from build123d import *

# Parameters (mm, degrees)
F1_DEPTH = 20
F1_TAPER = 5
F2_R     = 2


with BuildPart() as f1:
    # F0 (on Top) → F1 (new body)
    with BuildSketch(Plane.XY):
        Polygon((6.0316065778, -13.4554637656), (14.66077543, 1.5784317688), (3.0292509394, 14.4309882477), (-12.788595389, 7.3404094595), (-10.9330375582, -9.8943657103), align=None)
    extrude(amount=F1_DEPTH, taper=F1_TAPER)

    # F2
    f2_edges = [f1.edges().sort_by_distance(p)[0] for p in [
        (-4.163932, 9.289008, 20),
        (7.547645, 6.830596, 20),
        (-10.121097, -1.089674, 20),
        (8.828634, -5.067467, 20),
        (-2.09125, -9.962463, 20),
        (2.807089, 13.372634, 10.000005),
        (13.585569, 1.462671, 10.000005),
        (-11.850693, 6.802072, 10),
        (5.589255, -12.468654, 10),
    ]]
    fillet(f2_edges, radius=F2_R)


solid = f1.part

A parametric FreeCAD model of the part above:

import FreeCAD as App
import Part
import Sketcher
from FreeCAD import Vector
Q = App.Units.Quantity


def edges_at(feature, points):
    """Names of the edges that pass closest to the given points."""
    edges = feature.Shape.Edges
    near = lambda p: min(range(len(edges)), key=lambda i: edges[i].distToShape(Part.Vertex(*p))[0])
    return sorted({f"Edge{near(p) + 1}" for p in points})


def add_polygon(sketch, points):
    """Adds a closed chain of lines whose ends are joined by coincident constraints."""
    first, n = sketch.GeometryCount, len(points)
    for a, b in zip(points, points[1:] + points[:1]):
        sketch.addGeometry(Part.LineSegment(App.Vector(*a, 0), App.Vector(*b, 0)), False)
    for i in range(n):
        sketch.addConstraint(Sketcher.Constraint("Coincident", first + i, 2, first + (i + 1) % n, 1))

doc = App.newDocument("Part")
params = doc.addObject("Spreadsheet::Sheet", "Params")
for row, (alias, value) in enumerate([
    ("pad1_length", "20 mm"),
    ("pad1_taper", "-5 deg"),
    ("fillet_radius", "2 mm"),
], start=1):
    params.set(f"A{row}", alias)
    params.set(f"B{row}", "=" + value)
    params.setAlias(f"B{row}", alias)

body = doc.addObject("PartDesign::Body", "Body")

# Sketch on XY plane
sketch1 = body.newObject("Sketcher::SketchObject", "Sketch")
sketch1.AttachmentSupport = (doc.getObject("XY_Plane"), [""])
sketch1.MapMode = "FlatFace"
add_polygon(sketch1, [(6, -13), (15, 2), (3, 14), (-13, 7), (-11, -10)])  # lines 0-4
sketch1.addConstraint(Sketcher.Constraint("Equal", 0, 1))
sketch1.addConstraint(Sketcher.Constraint("Equal", 1, 2))
sketch1.addConstraint(Sketcher.Constraint("Equal", 2, 3))
sketch1.addConstraint(Sketcher.Constraint("Equal", 3, 4))
sketch1.addConstraint(Sketcher.Constraint("DistanceY", 4, 2, 3, 2, Q("3.561098 mm")))
sketch1.addConstraint(Sketcher.Constraint("DistanceX", 2, 2, 4, 2, Q("18.820202 mm")))
sketch1.addConstraint(Sketcher.Constraint("DistanceY", -1, 1, 0, 2, Q("1.578432 mm")))
sketch1.addConstraint(Sketcher.Constraint("DistanceX", -1, 1, 1, 2, Q("3.029251 mm")))
sketch1.addConstraint(Sketcher.Constraint("DistanceY", -1, 1, 1, 2, Q("14.430988 mm")))
sketch1.addConstraint(Sketcher.Constraint("DistanceY", -1, 1, 2, 2, Q("7.340409 mm")))
pad1 = body.newObject("PartDesign::Pad", "Pad")
pad1.Profile = sketch1
pad1.setExpression("Length", "Params.pad1_length")
pad1.setExpression("TaperAngle", "Params.pad1_taper")
doc.recompute()

fillet = body.newObject("PartDesign::Fillet", "Fillet")
fillet.Base = (pad1, edges_at(pad1, [
    (-4.164, 9.289, 20),
    (7.548, 6.831, 20),
    (-10.121, -1.09, 20),
    (8.829, -5.067, 20),
    (-2.091, -9.962, 20),
    (2.807, 13.373, 10),
    (13.586, 1.463, 10),
    (-11.851, 6.802, 10),
    (5.589, -12.469, 10),
]))
fillet.setExpression("Radius", "Params.fillet_radius")

doc.recompute()
